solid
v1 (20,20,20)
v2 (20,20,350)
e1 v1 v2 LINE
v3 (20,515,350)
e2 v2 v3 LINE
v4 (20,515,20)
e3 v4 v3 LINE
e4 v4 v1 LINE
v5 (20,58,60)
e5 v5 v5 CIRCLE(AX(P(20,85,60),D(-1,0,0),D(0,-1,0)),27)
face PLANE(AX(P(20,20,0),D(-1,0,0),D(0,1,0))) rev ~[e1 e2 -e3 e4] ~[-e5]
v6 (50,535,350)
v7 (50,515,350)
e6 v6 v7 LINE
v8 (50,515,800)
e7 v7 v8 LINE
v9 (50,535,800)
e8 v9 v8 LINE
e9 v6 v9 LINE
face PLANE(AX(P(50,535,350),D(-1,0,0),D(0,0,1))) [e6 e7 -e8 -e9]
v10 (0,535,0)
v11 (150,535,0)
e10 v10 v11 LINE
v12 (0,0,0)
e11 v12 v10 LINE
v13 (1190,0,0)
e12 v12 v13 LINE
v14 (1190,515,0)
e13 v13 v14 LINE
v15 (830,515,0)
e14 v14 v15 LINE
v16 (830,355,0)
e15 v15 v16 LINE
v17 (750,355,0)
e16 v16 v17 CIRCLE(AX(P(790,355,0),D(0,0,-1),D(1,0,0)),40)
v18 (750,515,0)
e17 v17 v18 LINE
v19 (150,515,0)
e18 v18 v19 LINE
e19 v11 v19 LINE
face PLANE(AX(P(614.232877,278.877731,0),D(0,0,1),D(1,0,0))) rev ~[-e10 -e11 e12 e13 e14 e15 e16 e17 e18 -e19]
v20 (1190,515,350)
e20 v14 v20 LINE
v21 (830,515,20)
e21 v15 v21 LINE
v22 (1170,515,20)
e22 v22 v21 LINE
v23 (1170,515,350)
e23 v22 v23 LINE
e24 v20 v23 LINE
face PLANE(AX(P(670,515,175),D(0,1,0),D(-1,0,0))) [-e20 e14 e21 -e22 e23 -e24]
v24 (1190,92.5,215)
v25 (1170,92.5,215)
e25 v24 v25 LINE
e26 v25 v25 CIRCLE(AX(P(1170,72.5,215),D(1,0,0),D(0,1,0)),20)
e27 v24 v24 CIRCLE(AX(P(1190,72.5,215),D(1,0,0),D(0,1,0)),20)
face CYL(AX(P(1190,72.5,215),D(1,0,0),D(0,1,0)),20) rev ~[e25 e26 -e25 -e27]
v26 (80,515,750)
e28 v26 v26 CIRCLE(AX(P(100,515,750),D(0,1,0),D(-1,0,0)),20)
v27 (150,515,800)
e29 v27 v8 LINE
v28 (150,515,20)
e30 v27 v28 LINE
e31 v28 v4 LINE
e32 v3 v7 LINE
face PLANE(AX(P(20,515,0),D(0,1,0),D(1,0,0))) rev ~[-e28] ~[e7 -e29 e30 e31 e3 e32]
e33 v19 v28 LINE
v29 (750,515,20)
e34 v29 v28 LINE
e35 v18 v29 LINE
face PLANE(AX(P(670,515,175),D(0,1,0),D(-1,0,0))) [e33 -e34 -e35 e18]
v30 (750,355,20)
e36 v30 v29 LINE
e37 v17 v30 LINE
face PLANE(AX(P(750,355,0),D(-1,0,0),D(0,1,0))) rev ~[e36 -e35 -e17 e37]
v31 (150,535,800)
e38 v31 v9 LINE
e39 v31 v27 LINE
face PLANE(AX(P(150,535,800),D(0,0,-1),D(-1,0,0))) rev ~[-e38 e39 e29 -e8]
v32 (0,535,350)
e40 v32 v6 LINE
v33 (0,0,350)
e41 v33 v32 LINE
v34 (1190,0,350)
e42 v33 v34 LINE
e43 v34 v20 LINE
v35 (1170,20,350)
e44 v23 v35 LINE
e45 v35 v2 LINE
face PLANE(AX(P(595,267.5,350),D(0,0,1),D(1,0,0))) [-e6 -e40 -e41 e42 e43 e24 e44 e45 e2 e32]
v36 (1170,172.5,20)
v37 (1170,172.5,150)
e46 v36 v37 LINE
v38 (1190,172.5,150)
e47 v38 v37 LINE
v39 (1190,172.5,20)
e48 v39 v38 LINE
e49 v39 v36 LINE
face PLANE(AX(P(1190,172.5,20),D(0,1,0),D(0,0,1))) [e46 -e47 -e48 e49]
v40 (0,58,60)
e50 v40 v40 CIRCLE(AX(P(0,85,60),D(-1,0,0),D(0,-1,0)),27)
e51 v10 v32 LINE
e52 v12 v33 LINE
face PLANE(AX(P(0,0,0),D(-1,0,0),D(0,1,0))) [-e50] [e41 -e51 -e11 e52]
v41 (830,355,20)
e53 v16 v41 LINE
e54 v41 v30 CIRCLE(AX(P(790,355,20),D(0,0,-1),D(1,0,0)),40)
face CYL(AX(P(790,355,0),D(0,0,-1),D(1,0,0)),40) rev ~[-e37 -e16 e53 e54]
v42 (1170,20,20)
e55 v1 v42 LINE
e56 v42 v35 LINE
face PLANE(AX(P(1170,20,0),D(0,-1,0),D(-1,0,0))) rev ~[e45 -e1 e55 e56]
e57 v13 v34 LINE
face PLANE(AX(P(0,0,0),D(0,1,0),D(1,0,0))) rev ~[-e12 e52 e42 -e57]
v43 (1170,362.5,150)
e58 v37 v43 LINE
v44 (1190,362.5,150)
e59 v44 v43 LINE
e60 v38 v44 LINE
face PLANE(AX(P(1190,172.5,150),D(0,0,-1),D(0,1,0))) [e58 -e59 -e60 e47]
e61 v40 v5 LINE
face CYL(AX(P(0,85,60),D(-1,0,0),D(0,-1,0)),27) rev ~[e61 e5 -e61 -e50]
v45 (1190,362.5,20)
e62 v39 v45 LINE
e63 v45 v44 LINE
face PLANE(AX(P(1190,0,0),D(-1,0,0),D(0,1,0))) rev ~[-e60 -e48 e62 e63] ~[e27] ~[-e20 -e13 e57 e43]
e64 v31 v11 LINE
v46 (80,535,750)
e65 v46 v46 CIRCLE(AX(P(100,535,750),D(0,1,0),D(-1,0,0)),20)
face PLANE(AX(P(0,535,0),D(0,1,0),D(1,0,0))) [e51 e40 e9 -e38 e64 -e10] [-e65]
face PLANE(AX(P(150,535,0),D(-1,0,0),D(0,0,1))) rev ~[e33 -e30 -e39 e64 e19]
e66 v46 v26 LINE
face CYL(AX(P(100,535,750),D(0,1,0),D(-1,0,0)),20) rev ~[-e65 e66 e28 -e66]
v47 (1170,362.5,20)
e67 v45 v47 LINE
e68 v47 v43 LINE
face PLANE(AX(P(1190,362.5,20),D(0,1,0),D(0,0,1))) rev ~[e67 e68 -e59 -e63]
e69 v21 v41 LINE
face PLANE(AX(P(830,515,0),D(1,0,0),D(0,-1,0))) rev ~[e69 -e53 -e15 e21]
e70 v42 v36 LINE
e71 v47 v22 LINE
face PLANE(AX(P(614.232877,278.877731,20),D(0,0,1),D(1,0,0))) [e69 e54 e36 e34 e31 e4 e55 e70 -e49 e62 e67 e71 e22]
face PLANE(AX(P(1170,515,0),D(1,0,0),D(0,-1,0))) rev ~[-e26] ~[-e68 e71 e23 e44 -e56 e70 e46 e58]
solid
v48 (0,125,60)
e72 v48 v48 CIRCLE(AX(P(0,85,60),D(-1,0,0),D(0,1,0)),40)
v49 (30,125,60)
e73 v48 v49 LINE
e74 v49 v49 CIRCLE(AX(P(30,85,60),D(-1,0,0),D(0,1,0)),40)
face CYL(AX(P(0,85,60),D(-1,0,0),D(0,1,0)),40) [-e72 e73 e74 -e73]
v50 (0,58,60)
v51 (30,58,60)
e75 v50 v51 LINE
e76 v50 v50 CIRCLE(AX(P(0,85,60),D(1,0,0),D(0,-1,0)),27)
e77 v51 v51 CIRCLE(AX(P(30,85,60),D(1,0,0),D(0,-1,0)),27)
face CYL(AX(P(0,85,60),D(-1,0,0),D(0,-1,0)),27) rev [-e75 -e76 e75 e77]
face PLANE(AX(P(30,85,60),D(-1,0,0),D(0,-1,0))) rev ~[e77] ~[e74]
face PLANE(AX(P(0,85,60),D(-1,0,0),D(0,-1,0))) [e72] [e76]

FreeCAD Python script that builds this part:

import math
import FreeCAD as App
import Part
import Sketcher
Q = App.Units.Quantity

doc = App.newDocument("Part")
params = doc.addObject("Spreadsheet::Sheet", "Params")
for row, (alias, value) in enumerate([
    ("sketch1_width", "1190 mm"),
    ("sketch1_width2", "1150 mm"),
    ("sketch1_height", "535 mm"),
    ("sketch1_height2", "495 mm"),
    ("pad1_length", "350 mm"),
    ("sketch2_radius", "40 mm"),
    ("sketch2_width", "730 mm"),
    ("sketch2_width2", "1150 mm"),
    ("sketch2_height", "495 mm"),
    ("sketch2_height2", "160 mm"),
    ("pad2_length", "20 mm"),
    ("sketch3_diameter", "40 mm"),
    ("pocket1_length", "25 mm"),
    ("sketch4_diameter", "40 mm"),
    ("sketch4_width", "100 mm"),
    ("sketch4_height", "450 mm"),
    ("pad3_length", "20 mm"),
    ("sketch5_diameter", "54 mm"),
    ("pocket2_length", "50 mm"),
    ("sketch6_width", "1040 mm"),
    ("sketch6_height", "350 mm"),
    ("pocket3_length", "20 mm"),
    ("sketch7_width", "190 mm"),
    ("sketch7_height", "130 mm"),
    ("pocket4_length", "20 mm"),
    ("sketch8_diameter", "80 mm"),
    ("sketch8_diameter2", "54 mm"),
    ("pad4_length", "30 mm"),
], start=1):
    params.set(f"A{row}", alias)
    params.set(f"B{row}", "=" + value)
    params.setAlias(f"B{row}", alias)

body = doc.addObject("PartDesign::Body", "Body")

# Sketch on XY plane
sketch1 = body.newObject("Sketcher::SketchObject", "Sketch")
sketch1.AttachmentSupport = (doc.getObject("XY_Plane"), [""])
sketch1.MapMode = "FlatFace"
sketch1.addGeometry([
    Part.LineSegment(App.Vector(0, 535, 0), App.Vector(0, 0, 0)),  # 0
    Part.LineSegment(App.Vector(0, 0, 0), App.Vector(1190, 0, 0)),  # 1
    Part.LineSegment(App.Vector(1190, 0, 0), App.Vector(1190, 535, 0)),  # 2
    Part.LineSegment(App.Vector(1190, 535, 0), App.Vector(0, 535, 0)),  # 3
    Part.LineSegment(App.Vector(1170, 20, 0), App.Vector(20, 20, 0)),  # 4
    Part.LineSegment(App.Vector(20, 20, 0), App.Vector(20, 515, 0)),  # 5
    Part.LineSegment(App.Vector(20, 515, 0), App.Vector(1170, 515, 0)),  # 6
    Part.LineSegment(App.Vector(1170, 515, 0), App.Vector(1170, 20, 0)),  # 7
], False)
sketch1.addConstraint([
    Sketcher.Constraint("Coincident", 0, 2, 1, 1),
    Sketcher.Constraint("Coincident", 1, 2, 2, 1),
    Sketcher.Constraint("Coincident", 2, 2, 3, 1),
    Sketcher.Constraint("Coincident", 3, 2, 0, 1),
    Sketcher.Constraint("Coincident", 4, 2, 5, 1),
    Sketcher.Constraint("Coincident", 5, 2, 6, 1),
    Sketcher.Constraint("Coincident", 6, 2, 7, 1),
    Sketcher.Constraint("Coincident", 7, 2, 4, 1),
    Sketcher.Constraint("Vertical", 0),
    Sketcher.Constraint("Horizontal", 1),
    Sketcher.Constraint("Vertical", 2),
    Sketcher.Constraint("Horizontal", 3),
    Sketcher.Constraint("Horizontal", 4),
    Sketcher.Constraint("Vertical", 5),
    Sketcher.Constraint("Horizontal", 6),
    Sketcher.Constraint("Vertical", 7),
    Sketcher.Constraint("Coincident", 0, 2, -1, 1),
    Sketcher.Constraint("DistanceX", 1, 1, 1, 2, Q("1190 mm")),
    Sketcher.Constraint("DistanceX", 4, 2, 4, 1, Q("1150 mm")),
    Sketcher.Constraint("DistanceY", 0, 2, 0, 1, Q("535 mm")),
    Sketcher.Constraint("DistanceY", 5, 1, 5, 2, Q("495 mm")),
    Sketcher.Constraint("DistanceX", -1, 1, 4, 2, Q("20 mm")),
    Sketcher.Constraint("DistanceY", -1, 1, 4, 2, Q("20 mm")),
])
sketch1.setExpression("Constraints[17]", "Params.sketch1_width")
sketch1.setExpression("Constraints[18]", "Params.sketch1_width2")
sketch1.setExpression("Constraints[19]", "Params.sketch1_height")
sketch1.setExpression("Constraints[20]", "Params.sketch1_height2")
pad1 = body.newObject("PartDesign::Pad", "Pad")
pad1.Profile = sketch1
pad1.setExpression("Length", "Params.pad1_length")

# Sketch on XY plane
sketch2 = body.newObject("Sketcher::SketchObject", "Sketch001")
sketch2.AttachmentSupport = (doc.getObject("XY_Plane"), [""])
sketch2.MapMode = "FlatFace"
sketch2.addGeometry([
    Part.LineSegment(App.Vector(750, 515, 0), App.Vector(20, 515, 0)),  # 0
    Part.LineSegment(App.Vector(20, 515, 0), App.Vector(20, 20, 0)),  # 1
    Part.LineSegment(App.Vector(20, 20, 0), App.Vector(1170, 20, 0)),  # 2
    Part.LineSegment(App.Vector(1170, 20, 0), App.Vector(1170, 515, 0)),  # 3
    Part.LineSegment(App.Vector(1170, 515, 0), App.Vector(830, 515, 0)),  # 4
    Part.LineSegment(App.Vector(830, 515, 0), App.Vector(830, 355, 0)),  # 5
    Part.ArcOfCircle(Part.Circle(App.Vector(790, 355, 0), App.Vector(0, 0, 1), 40), math.radians(180), math.radians(360)),  # 6
    Part.LineSegment(App.Vector(750, 355, 0), App.Vector(750, 515, 0)),  # 7
], False)
sketch2.addConstraint([
    Sketcher.Constraint("Coincident", 0, 2, 1, 1),
    Sketcher.Constraint("Coincident", 1, 2, 2, 1),
    Sketcher.Constraint("Coincident", 2, 2, 3, 1),
    Sketcher.Constraint("Coincident", 3, 2, 4, 1),
    Sketcher.Constraint("Coincident", 4, 2, 5, 1),
    Sketcher.Constraint("Tangent", 5, 2, 6, 2),
    Sketcher.Constraint("Tangent", 6, 1, 7, 1),
    Sketcher.Constraint("Coincident", 7, 2, 0, 1),
    Sketcher.Constraint("Horizontal", 0),
    Sketcher.Constraint("Vertical", 1),
    Sketcher.Constraint("Horizontal", 2),
    Sketcher.Constraint("Vertical", 3),
    Sketcher.Constraint("Horizontal", 4),
    Sketcher.Constraint("Vertical", 5),
    Sketcher.Constraint("Vertical", 7),
    Sketcher.Constraint("Horizontal", 0, 2, 3, 2),
    Sketcher.Constraint("Radius", 6, Q("40 mm")),
    Sketcher.Constraint("DistanceX", 0, 2, 0, 1, Q("730 mm")),
    Sketcher.Constraint("DistanceX", 2, 1, 2, 2, Q("1150 mm")),
    Sketcher.Constraint("DistanceY", 1, 2, 1, 1, Q("495 mm")),
    Sketcher.Constraint("DistanceY", 5, 2, 5, 1, Q("160 mm")),
    Sketcher.Constraint("DistanceX", -1, 1, 6, 3, Q("790 mm")),
    Sketcher.Constraint("DistanceY", -1, 1, 6, 3, Q("355 mm")),
])
sketch2.setExpression("Constraints[16]", "Params.sketch2_radius")
sketch2.setExpression("Constraints[17]", "Params.sketch2_width")
sketch2.setExpression("Constraints[18]", "Params.sketch2_width2")
sketch2.setExpression("Constraints[19]", "Params.sketch2_height")
sketch2.setExpression("Constraints[20]", "Params.sketch2_height2")
pad2 = body.newObject("PartDesign::Pad", "Pad001")
pad2.Profile = sketch2
pad2.setExpression("Length", "Params.pad2_length")

# Sketch on YZ plane
sketch3 = body.newObject("Sketcher::SketchObject", "Sketch002")
sketch3.AttachmentSupport = (doc.getObject("YZ_Plane"), [""])
sketch3.MapMode = "FlatFace"
sketch3.AttachmentOffset = App.Placement(App.Vector(0, 0, 1190), App.Rotation())
sketch3.addGeometry(Part.Circle(App.Vector(72, 215, 0), App.Vector(0, 0, 1), 20), False)
sketch3.addConstraint([
    Sketcher.Constraint("Diameter", 0, Q("40 mm")),
    Sketcher.Constraint("DistanceY", -1, 1, 0, 3, Q("215 mm")),
    Sketcher.Constraint("DistanceX", -1, 1, 0, 3, Q("72.5 mm")),
])
sketch3.setExpression("Constraints[0]", "Params.sketch3_diameter")
pocket1 = body.newObject("PartDesign::Pocket", "Pocket")
pocket1.Profile = sketch3
pocket1.setExpression("Length", "Params.pocket1_length")

# Sketch on XZ plane
sketch4 = body.newObject("Sketcher::SketchObject", "Sketch003")
sketch4.AttachmentSupport = (doc.getObject("XZ_Plane"), [""])
sketch4.MapMode = "FlatFace"
sketch4.AttachmentOffset = App.Placement(App.Vector(0, 0, -535), App.Rotation())
sketch4.addGeometry([
    Part.LineSegment(App.Vector(150, 800, 0), App.Vector(150, 350, 0)),  # 0
    Part.LineSegment(App.Vector(150, 350, 0), App.Vector(50, 350, 0)),  # 1
    Part.LineSegment(App.Vector(50, 350, 0), App.Vector(50, 800, 0)),  # 2
    Part.LineSegment(App.Vector(50, 800, 0), App.Vector(150, 800, 0)),  # 3
    Part.Circle(App.Vector(100, 750, 0), App.Vector(0, 0, 1), 20),  # 4
], False)
sketch4.addConstraint([
    Sketcher.Constraint("Coincident", 0, 2, 1, 1),
    Sketcher.Constraint("Coincident", 1, 2, 2, 1),
    Sketcher.Constraint("Coincident", 2, 2, 3, 1),
    Sketcher.Constraint("Coincident", 3, 2, 0, 1),
    Sketcher.Constraint("Vertical", 0),
    Sketcher.Constraint("Horizontal", 1),
    Sketcher.Constraint("Vertical", 2),
    Sketcher.Constraint("Horizontal", 3),
    Sketcher.Constraint("Diameter", 4, Q("40 mm")),
    Sketcher.Constraint("DistanceX", 1, 2, 1, 1, Q("100 mm")),
    Sketcher.Constraint("DistanceY", 0, 2, 0, 1, Q("450 mm")),
    Sketcher.Constraint("DistanceX", -1, 1, 4, 3, Q("100 mm")),
    Sketcher.Constraint("DistanceY", -1, 1, 4, 3, Q("750 mm")),
    Sketcher.Constraint("DistanceX", -1, 1, 0, 2, Q("150 mm")),
    Sketcher.Constraint("DistanceY", -1, 1, 0, 2, Q("350 mm")),
])
sketch4.setExpression("Constraints[8]", "Params.sketch4_diameter")
sketch4.setExpression("Constraints[9]", "Params.sketch4_width")
sketch4.setExpression("Constraints[10]", "Params.sketch4_height")
pad3 = body.newObject("PartDesign::Pad", "Pad002")
pad3.Profile = sketch4
pad3.setExpression("Length", "Params.pad3_length")

# Sketch on YZ plane
sketch5 = body.newObject("Sketcher::SketchObject", "Sketch004")
sketch5.AttachmentSupport = (doc.getObject("YZ_Plane"), [""])
sketch5.MapMode = "FlatFace"
sketch5.addGeometry(Part.Circle(App.Vector(85, 60, 0), App.Vector(0, 0, 1), 27), False)
sketch5.addConstraint([
    Sketcher.Constraint("Diameter", 0, Q("54 mm")),
    Sketcher.Constraint("DistanceX", -1, 1, 0, 3, Q("85 mm")),
    Sketcher.Constraint("DistanceY", -1, 1, 0, 3, Q("60 mm")),
])
sketch5.setExpression("Constraints[0]", "Params.sketch5_diameter")
pocket2 = body.newObject("PartDesign::Pocket", "Pocket001")
pocket2.Profile = sketch5
pocket2.setExpression("Length", "Params.pocket2_length")
pocket2.Reversed = True

# Sketch on XZ plane
sketch6 = body.newObject("Sketcher::SketchObject", "Sketch005")
sketch6.AttachmentSupport = (doc.getObject("XZ_Plane"), [""])
sketch6.MapMode = "FlatFace"
sketch6.AttachmentOffset = App.Placement(App.Vector(0, 0, -535), App.Rotation())
sketch6.addGeometry([
    Part.LineSegment(App.Vector(1190, 350, 0), App.Vector(1190, 0, 0)),
    Part.LineSegment(App.Vector(1190, 0, 0), App.Vector(150, 0, 0)),
    Part.LineSegment(App.Vector(150, 0, 0), App.Vector(150, 350, 0)),
    Part.LineSegment(App.Vector(150, 350, 0), App.Vector(1190, 350, 0)),
], False)
sketch6.addConstraint([
    Sketcher.Constraint("Coincident", 0, 2, 1, 1),
    Sketcher.Constraint("Coincident", 1, 2, 2, 1),
    Sketcher.Constraint("Coincident", 2, 2, 3, 1),
    Sketcher.Constraint("Coincident", 3, 2, 0, 1),
    Sketcher.Constraint("Vertical", 0),
    Sketcher.Constraint("Horizontal", 1),
    Sketcher.Constraint("Vertical", 2),
    Sketcher.Constraint("Horizontal", 3),
    Sketcher.Constraint("PointOnObject", 0, 2, -1),
    Sketcher.Constraint("DistanceX", 1, 2, 1, 1, Q("1040 mm")),
    Sketcher.Constraint("DistanceY", 0, 2, 0, 1, Q("350 mm")),
    Sketcher.Constraint("DistanceX", -1, 1, 0, 2, Q("1190 mm")),
])
sketch6.setExpression("Constraints[9]", "Params.sketch6_width")
sketch6.setExpression("Constraints[10]", "Params.sketch6_height")
pocket3 = body.newObject("PartDesign::Pocket", "Pocket002")
pocket3.Profile = sketch6
pocket3.setExpression("Length", "Params.pocket3_length")
pocket3.Reversed = True

# Sketch on YZ plane
sketch7 = body.newObject("Sketcher::SketchObject", "Sketch006")
sketch7.AttachmentSupport = (doc.getObject("YZ_Plane"), [""])
sketch7.MapMode = "FlatFace"
sketch7.AttachmentOffset = App.Placement(App.Vector(0, 0, 1190), App.Rotation())
sketch7.addGeometry([
    Part.LineSegment(App.Vector(172, 150, 0), App.Vector(172, 20, 0)),
    Part.LineSegment(App.Vector(172, 20, 0), App.Vector(362, 20, 0)),
    Part.LineSegment(App.Vector(362, 20, 0), App.Vector(362, 150, 0)),
    Part.LineSegment(App.Vector(362, 150, 0), App.Vector(172, 150, 0)),
], False)
sketch7.addConstraint([
    Sketcher.Constraint("Coincident", 0, 2, 1, 1),
    Sketcher.Constraint("Coincident", 1, 2, 2, 1),
    Sketcher.Constraint("Coincident", 2, 2, 3, 1),
    Sketcher.Constraint("Coincident", 3, 2, 0, 1),
    Sketcher.Constraint("Vertical", 0),
    Sketcher.Constraint("Horizontal", 1),
    Sketcher.Constraint("Vertical", 2),
    Sketcher.Constraint("Horizontal", 3),
    Sketcher.Constraint("DistanceX", 1, 1, 1, 2, Q("190 mm")),
    Sketcher.Constraint("DistanceY", 0, 2, 0, 1, Q("130 mm")),
    Sketcher.Constraint("DistanceY", -1, 1, 0, 2, Q("20 mm")),
    Sketcher.Constraint("DistanceX", -1, 1, 0, 2, Q("172.5 mm")),
])
sketch7.setExpression("Constraints[8]", "Params.sketch7_width")
sketch7.setExpression("Constraints[9]", "Params.sketch7_height")
pocket4 = body.newObject("PartDesign::Pocket", "Pocket003")
pocket4.Profile = sketch7
pocket4.setExpression("Length", "Params.pocket4_length")
body2 = doc.addObject("PartDesign::Body", "Body001")

# Sketch on YZ plane
sketch8 = body2.newObject("Sketcher::SketchObject", "Sketch007")
sketch8.AttachmentSupport = (doc.getObject("YZ_Plane001"), [""])
sketch8.MapMode = "FlatFace"
sketch8.addGeometry([
    Part.Circle(App.Vector(85, 60, 0), App.Vector(0, 0, 1), 40),
    Part.Circle(App.Vector(85, 60, 0), App.Vector(0, 0, 1), 27),
], False)
sketch8.addConstraint([
    Sketcher.Constraint("Coincident", 1, 3, 0, 3),
    Sketcher.Constraint("Diameter", 0, Q("80 mm")),
    Sketcher.Constraint("Diameter", 1, Q("54 mm")),
    Sketcher.Constraint("DistanceX", -1, 1, 0, 3, Q("85 mm")),
    Sketcher.Constraint("DistanceY", -1, 1, 0, 3, Q("60 mm")),
])
sketch8.setExpression("Constraints[1]", "Params.sketch8_diameter")
sketch8.setExpression("Constraints[2]", "Params.sketch8_diameter2")
pad4 = body2.newObject("PartDesign::Pad", "Pad003")
pad4.Profile = sketch8
pad4.setExpression("Length", "Params.pad4_length")

doc.recompute()
